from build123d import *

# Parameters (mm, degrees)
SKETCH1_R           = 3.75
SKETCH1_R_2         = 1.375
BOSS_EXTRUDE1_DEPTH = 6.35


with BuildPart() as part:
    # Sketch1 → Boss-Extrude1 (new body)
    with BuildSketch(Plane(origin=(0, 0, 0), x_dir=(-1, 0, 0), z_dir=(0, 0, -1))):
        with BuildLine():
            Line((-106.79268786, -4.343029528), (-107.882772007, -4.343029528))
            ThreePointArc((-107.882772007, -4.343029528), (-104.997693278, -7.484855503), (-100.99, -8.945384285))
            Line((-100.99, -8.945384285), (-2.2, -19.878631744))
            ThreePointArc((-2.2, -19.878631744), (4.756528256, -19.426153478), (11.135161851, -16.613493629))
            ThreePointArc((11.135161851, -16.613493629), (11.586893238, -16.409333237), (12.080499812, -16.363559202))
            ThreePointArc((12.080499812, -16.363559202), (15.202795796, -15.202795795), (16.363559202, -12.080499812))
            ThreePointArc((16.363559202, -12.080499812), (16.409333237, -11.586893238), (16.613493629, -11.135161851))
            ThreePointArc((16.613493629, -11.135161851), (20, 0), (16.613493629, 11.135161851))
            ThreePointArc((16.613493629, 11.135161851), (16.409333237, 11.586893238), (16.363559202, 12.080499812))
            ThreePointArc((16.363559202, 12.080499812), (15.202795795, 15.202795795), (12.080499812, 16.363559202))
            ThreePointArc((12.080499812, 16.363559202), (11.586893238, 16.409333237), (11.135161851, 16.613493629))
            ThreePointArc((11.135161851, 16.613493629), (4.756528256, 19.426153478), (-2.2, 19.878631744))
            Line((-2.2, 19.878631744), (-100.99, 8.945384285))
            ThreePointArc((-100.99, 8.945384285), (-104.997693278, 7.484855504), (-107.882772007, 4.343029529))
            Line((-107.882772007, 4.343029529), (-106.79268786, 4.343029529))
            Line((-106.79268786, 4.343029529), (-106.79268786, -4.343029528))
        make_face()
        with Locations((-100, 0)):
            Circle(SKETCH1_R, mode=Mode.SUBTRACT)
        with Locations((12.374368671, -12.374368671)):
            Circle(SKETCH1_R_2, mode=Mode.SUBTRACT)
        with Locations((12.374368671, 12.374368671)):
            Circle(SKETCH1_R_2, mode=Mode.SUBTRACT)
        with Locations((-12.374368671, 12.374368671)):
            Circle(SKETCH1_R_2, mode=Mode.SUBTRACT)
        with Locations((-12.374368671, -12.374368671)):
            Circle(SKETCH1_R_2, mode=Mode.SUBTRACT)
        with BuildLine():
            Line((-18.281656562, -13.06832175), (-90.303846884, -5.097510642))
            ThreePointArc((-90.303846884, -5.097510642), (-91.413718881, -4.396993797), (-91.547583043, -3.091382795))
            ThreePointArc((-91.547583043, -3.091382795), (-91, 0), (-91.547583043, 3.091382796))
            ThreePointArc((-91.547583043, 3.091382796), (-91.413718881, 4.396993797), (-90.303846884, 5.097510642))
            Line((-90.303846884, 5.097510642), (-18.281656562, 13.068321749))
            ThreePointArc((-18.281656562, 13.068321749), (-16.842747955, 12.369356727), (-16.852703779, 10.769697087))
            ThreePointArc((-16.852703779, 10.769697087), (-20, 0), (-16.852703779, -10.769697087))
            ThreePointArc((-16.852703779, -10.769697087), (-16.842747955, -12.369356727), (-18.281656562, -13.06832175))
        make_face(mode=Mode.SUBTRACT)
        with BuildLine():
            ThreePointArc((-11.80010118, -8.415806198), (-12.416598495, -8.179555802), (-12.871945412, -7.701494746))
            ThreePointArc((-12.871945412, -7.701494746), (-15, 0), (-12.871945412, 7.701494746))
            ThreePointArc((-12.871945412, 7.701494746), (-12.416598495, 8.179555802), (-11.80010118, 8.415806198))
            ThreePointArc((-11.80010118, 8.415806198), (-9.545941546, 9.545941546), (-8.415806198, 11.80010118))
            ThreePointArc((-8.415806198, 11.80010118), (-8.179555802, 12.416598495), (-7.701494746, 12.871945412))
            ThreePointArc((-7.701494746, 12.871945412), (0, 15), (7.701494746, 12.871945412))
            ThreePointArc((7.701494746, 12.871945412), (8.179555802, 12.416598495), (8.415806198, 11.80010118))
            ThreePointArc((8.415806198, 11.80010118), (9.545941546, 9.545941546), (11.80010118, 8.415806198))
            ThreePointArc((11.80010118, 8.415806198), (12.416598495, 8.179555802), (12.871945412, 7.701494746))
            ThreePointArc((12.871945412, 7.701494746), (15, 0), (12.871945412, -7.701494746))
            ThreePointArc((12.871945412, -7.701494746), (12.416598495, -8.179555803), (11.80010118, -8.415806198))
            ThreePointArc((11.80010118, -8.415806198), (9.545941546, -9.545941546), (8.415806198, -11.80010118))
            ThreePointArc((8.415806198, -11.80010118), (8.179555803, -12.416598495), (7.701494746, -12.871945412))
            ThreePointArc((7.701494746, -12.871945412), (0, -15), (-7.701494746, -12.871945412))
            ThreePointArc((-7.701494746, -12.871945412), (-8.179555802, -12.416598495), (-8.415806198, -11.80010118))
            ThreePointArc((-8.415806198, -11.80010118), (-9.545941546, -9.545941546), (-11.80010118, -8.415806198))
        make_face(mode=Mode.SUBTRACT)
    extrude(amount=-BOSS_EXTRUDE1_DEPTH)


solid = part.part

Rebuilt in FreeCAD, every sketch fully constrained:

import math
import FreeCAD as App
import Part
import Sketcher
from FreeCAD import Vector
Q = App.Units.Quantity

doc = App.newDocument("Part")
body = doc.addObject("PartDesign::Body", "Body")

# Sketch on XY plane
sketch1 = body.newObject("Sketcher::SketchObject", "Sketch")
sketch1.AttachmentSupport = (doc.getObject("XY_Plane"), [""])
sketch1.MapMode = "FlatFace"
sketch1.addGeometry([
    Part.LineSegment(Vector(106.8, -4.3, 0), Vector(107.9, -4.3, 0)),  # 0
    Part.ArcOfCircle(Part.Circle(Vector(100, 0, 0), Vector(0, 0, 1), 9), math.radians(-84), math.radians(-29)),  # 1
    Part.LineSegment(Vector(101, -8.9, 0), Vector(2.2, -19.9, 0)),  # 2
    Part.ArcOfCircle(Part.Circle(Vector(0, 0, 0), Vector(0, 0, 1), 20), math.radians(-124), math.radians(-84)),  # 3
    Part.ArcOfCircle(Part.Circle(Vector(-12, -17.9, 0), Vector(0, 0, 1), 1.5), math.radians(56), math.radians(94)),  # 4
    Part.ArcOfCircle(Part.Circle(Vector(-12.4, -12.4, 0), Vector(0, 0, 1), 4), math.radians(176), math.radians(274)),  # 5
    Part.ArcOfCircle(Part.Circle(Vector(-17.9, -12, 0), Vector(0, 0, 1), 1.5), math.radians(-4), math.radians(34)),  # 6
    Part.ArcOfCircle(Part.Circle(Vector(0, 0, 0), Vector(0, 0, 1), 20), math.radians(146), math.radians(214)),  # 7
    Part.ArcOfCircle(Part.Circle(Vector(-17.9, 12, 0), Vector(0, 0, 1), 1.5), math.radians(-34), math.radians(4)),  # 8
    Part.ArcOfCircle(Part.Circle(Vector(-12.4, 12.4, 0), Vector(0, 0, 1), 4), math.radians(86), math.radians(184)),  # 9
    Part.ArcOfCircle(Part.Circle(Vector(-12, 17.9, 0), Vector(0, 0, 1), 1.5), math.radians(-94), math.radians(-56)),  # 10
    Part.ArcOfCircle(Part.Circle(Vector(0, 0, 0), Vector(0, 0, 1), 20), math.radians(84), math.radians(124)),  # 11
    Part.LineSegment(Vector(2.2, 19.9, 0), Vector(101, 8.9, 0)),  # 12
    Part.ArcOfCircle(Part.Circle(Vector(100, 0, 0), Vector(0, 0, 1), 9), math.radians(29), math.radians(84)),  # 13
    Part.LineSegment(Vector(107.9, 4.3, 0), Vector(106.8, 4.3, 0)),  # 14
    Part.LineSegment(Vector(106.8, 4.3, 0), Vector(106.8, -4.3, 0)),  # 15
    Part.Circle(Vector(100, 0, 0), Vector(0, 0, 1), 3.8),  # 16
    Part.ArcOfCircle(Part.Circle(Vector(18.1, -11.6, 0), Vector(0, 0, 1), 1.5), math.radians(147), math.radians(276)),  # 17
    Part.LineSegment(Vector(18.3, -13.1, 0), Vector(90.3, -5.1, 0)),  # 18
    Part.ArcOfCircle(Part.Circle(Vector(90.1, -3.6, 0), Vector(0, 0, 1), 1.5), math.radians(-84), math.radians(20)),  # 19
    Part.ArcOfCircle(Part.Circle(Vector(100, 0, 0), Vector(0, 0, 1), 9), math.radians(160), math.radians(200)),  # 20
    Part.ArcOfCircle(Part.Circle(Vector(90.1, 3.6, 0), Vector(0, 0, 1), 1.5), math.radians(-20), math.radians(84)),  # 21
    Part.LineSegment(Vector(90.3, 5.1, 0), Vector(18.3, 13.1, 0)),  # 22
    Part.ArcOfCircle(Part.Circle(Vector(18.1, 11.6, 0), Vector(0, 0, 1), 1.5), math.radians(84), math.radians(213)),  # 23
    Part.ArcOfCircle(Part.Circle(Vector(0, 0, 0), Vector(0, 0, 1), 20), math.radians(-33), math.radians(33)),  # 24
    Part.Circle(Vector(12.4, -12.4, 0), Vector(0, 0, 1), 1.4),  # 25
    Part.Circle(Vector(-12.4, -12.4, 0), Vector(0, 0, 1), 1.4),  # 26
    Part.ArcOfCircle(Part.Circle(Vector(12.4, -12.4, 0), Vector(0, 0, 1), 4), math.radians(98), math.radians(172)),  # 27
    Part.ArcOfCircle(Part.Circle(Vector(11.6, -6.9, 0), Vector(0, 0, 1), 1.5), math.radians(-82), math.radians(-31)),  # 28
    Part.ArcOfCircle(Part.Circle(Vector(0, 0, 0), Vector(0, 0, 1), 15), math.radians(-31), math.radians(31)),  # 29
    Part.ArcOfCircle(Part.Circle(Vector(11.6, 6.9, 0), Vector(0, 0, 1), 1.5), math.radians(31), math.radians(82)),  # 30
    Part.ArcOfCircle(Part.Circle(Vector(12.4, 12.4, 0), Vector(0, 0, 1), 4), math.radians(-172), math.radians(-98)),  # 31
    Part.ArcOfCircle(Part.Circle(Vector(6.9, 11.6, 0), Vector(0, 0, 1), 1.5), math.radians(8), math.radians(59)),  # 32
    Part.ArcOfCircle(Part.Circle(Vector(0, 0, 0), Vector(0, 0, 1), 15), math.radians(59), math.radians(121)),  # 33
    Part.ArcOfCircle(Part.Circle(Vector(-6.9, 11.6, 0), Vector(0, 0, 1), 1.5), math.radians(121), math.radians(172)),  # 34
    Part.ArcOfCircle(Part.Circle(Vector(-12.4, 12.4, 0), Vector(0, 0, 1), 4), math.radians(-82), math.radians(-8)),  # 35
    Part.ArcOfCircle(Part.Circle(Vector(-11.6, 6.9, 0), Vector(0, 0, 1), 1.5), math.radians(98), math.radians(149)),  # 36
    Part.ArcOfCircle(Part.Circle(Vector(0, 0, 0), Vector(0, 0, 1), 15), math.radians(149), math.radians(211)),  # 37
    Part.ArcOfCircle(Part.Circle(Vector(-11.6, -6.9, 0), Vector(0, 0, 1), 1.5), math.radians(-149), math.radians(-98)),  # 38
    Part.ArcOfCircle(Part.Circle(Vector(-12.4, -12.4, 0), Vector(0, 0, 1), 4), math.radians(8), math.radians(82)),  # 39
    Part.ArcOfCircle(Part.Circle(Vector(-6.9, -11.6, 0), Vector(0, 0, 1), 1.5), math.radians(-172), math.radians(-121)),  # 40
    Part.ArcOfCircle(Part.Circle(Vector(0, 0, 0), Vector(0, 0, 1), 15), math.radians(-121), math.radians(-59)),  # 41
    Part.ArcOfCircle(Part.Circle(Vector(6.9, -11.6, 0), Vector(0, 0, 1), 1.5), math.radians(-59), math.radians(-8)),  # 42
    Part.Circle(Vector(12.4, 12.4, 0), Vector(0, 0, 1), 1.4),  # 43
    Part.Circle(Vector(-12.4, 12.4, 0), Vector(0, 0, 1), 1.4),  # 44
], False)
sketch1.addConstraint([
    Sketcher.Constraint("Coincident", 0, 2, 1, 2),
    Sketcher.Constraint("Tangent", 1, 1, 2, 1),
    Sketcher.Constraint("Tangent", 2, 2, 3, 2),
    Sketcher.Constraint("Tangent", 3, 1, 4, 1),
    Sketcher.Constraint("Tangent", 4, 2, 5, 2),
    Sketcher.Constraint("Tangent", 5, 1, 6, 1),
    Sketcher.Constraint("Tangent", 6, 2, 7, 2),
    Sketcher.Constraint("Tangent", 7, 1, 8, 1),
    Sketcher.Constraint("Tangent", 8, 2, 9, 2),
    Sketcher.Constraint("Tangent", 9, 1, 10, 1),
    Sketcher.Constraint("Tangent", 10, 2, 11, 2),
    Sketcher.Constraint("Tangent", 11, 1, 12, 1),
    Sketcher.Constraint("Tangent", 12, 2, 13, 2),
    Sketcher.Constraint("Coincident", 13, 1, 14, 1),
    Sketcher.Constraint("Coincident", 14, 2, 15, 1),
    Sketcher.Constraint("Coincident", 15, 2, 0, 1),
    Sketcher.Constraint("Tangent", 17, 2, 18, 1),
    Sketcher.Constraint("Tangent", 18, 2, 19, 1),
    Sketcher.Constraint("Tangent", 19, 2, 20, 2),
    Sketcher.Constraint("Tangent", 20, 1, 21, 1),
    Sketcher.Constraint("Tangent", 21, 2, 22, 1),
    Sketcher.Constraint("Tangent", 22, 2, 23, 1),
    Sketcher.Constraint("Tangent", 23, 2, 24, 2),
    Sketcher.Constraint("Tangent", 24, 1, 17, 1),
    Sketcher.Constraint("Tangent", 27, 1, 28, 1),
    Sketcher.Constraint("Tangent", 28, 2, 29, 1),
    Sketcher.Constraint("Tangent", 29, 2, 30, 1),
    Sketcher.Constraint("Tangent", 30, 2, 31, 2),
    Sketcher.Constraint("Tangent", 31, 1, 32, 1),
    Sketcher.Constraint("Tangent", 32, 2, 33, 1),
    Sketcher.Constraint("Tangent", 33, 2, 34, 1),
    Sketcher.Constraint("Tangent", 34, 2, 35, 2),
    Sketcher.Constraint("Tangent", 35, 1, 36, 1),
    Sketcher.Constraint("Tangent", 36, 2, 37, 1),
    Sketcher.Constraint("Tangent", 37, 2, 38, 1),
    Sketcher.Constraint("Tangent", 38, 2, 39, 2),
    Sketcher.Constraint("Tangent", 39, 1, 40, 1),
    Sketcher.Constraint("Tangent", 40, 2, 41, 1),
    Sketcher.Constraint("Tangent", 41, 2, 42, 1),
    Sketcher.Constraint("Tangent", 42, 2, 27, 2),
    Sketcher.Constraint("Horizontal", 0),
    Sketcher.Constraint("Horizontal", 14),
    Sketcher.Constraint("Vertical", 15),
    Sketcher.Constraint("Coincident", 3, 3, -1, 1),
    Sketcher.Constraint("Coincident", 7, 3, -1, 1),
    Sketcher.Constraint("Coincident", 11, 3, -1, 1),
    Sketcher.Constraint("Coincident", 24, 3, -1, 1),
    Sketcher.Constraint("Coincident", 29, 3, -1, 1),
    Sketcher.Constraint("Coincident", 33, 3, -1, 1),
    Sketcher.Constraint("Coincident", 37, 3, -1, 1),
    Sketcher.Constraint("Coincident", 41, 3, -1, 1),
    Sketcher.Constraint("Coincident", 13, 3, 1, 3),
    Sketcher.Constraint("Coincident", 16, 3, 1, 3),
    Sketcher.Constraint("Coincident", 20, 3, 1, 3),
    Sketcher.Constraint("Coincident", 26, 3, 5, 3),
    Sketcher.Constraint("Coincident", 27, 3, 25, 3),
    Sketcher.Constraint("Coincident", 35, 3, 9, 3),
    Sketcher.Constraint("Coincident", 39, 3, 5, 3),
    Sketcher.Constraint("Coincident", 43, 3, 31, 3),
    Sketcher.Constraint("Coincident", 44, 3, 9, 3),
    Sketcher.Constraint("Equal", 4, 6),
    Sketcher.Constraint("Equal", 3, 7),
    Sketcher.Constraint("Equal", 6, 8),
    Sketcher.Constraint("Equal", 5, 9),
    Sketcher.Constraint("Equal", 8, 10),
    Sketcher.Constraint("Equal", 7, 11),
    Sketcher.Constraint("Equal", 1, 13),
    Sketcher.Constraint("Equal", 10, 17),
    Sketcher.Constraint("Equal", 17, 19),
    Sketcher.Constraint("Equal", 13, 20),
    Sketcher.Constraint("Equal", 19, 21),
    Sketcher.Constraint("Equal", 21, 23),
    Sketcher.Constraint("Equal", 11, 24),
    Sketcher.Constraint("Equal", 25, 26),
    Sketcher.Constraint("Equal", 9, 27),
    Sketcher.Constraint("Equal", 23, 28),
    Sketcher.Constraint("Equal", 28, 30),
    Sketcher.Constraint("Equal", 27, 31),
    Sketcher.Constraint("Equal", 30, 32),
    Sketcher.Constraint("Equal", 29, 33),
    Sketcher.Constraint("Equal", 32, 34),
    Sketcher.Constraint("Equal", 31, 35),
    Sketcher.Constraint("Equal", 34, 36),
    Sketcher.Constraint("Equal", 33, 37),
    Sketcher.Constraint("Equal", 36, 38),
    Sketcher.Constraint("Equal", 35, 39),
    Sketcher.Constraint("Equal", 38, 40),
    Sketcher.Constraint("Equal", 37, 41),
    Sketcher.Constraint("Equal", 40, 42),
    Sketcher.Constraint("Equal", 26, 43),
    Sketcher.Constraint("Equal", 43, 44),
    Sketcher.Constraint("Symmetric", 9, 3, 25, 3, -1, 1),
    Sketcher.Constraint("Symmetric", 5, 3, 31, 3, -1, 1),
    Sketcher.Constraint("Symmetric", 5, 3, 25, 3, -2),
    Sketcher.Constraint("Symmetric", 19, 3, 21, 3, -1),
    Sketcher.Constraint("Parallel", 2, 18),
    Sketcher.Constraint("Parallel", 12, 22),
    Sketcher.Constraint("Vertical", 0, 2, 13, 1),
    Sketcher.Constraint("Radius", 1, Q("9 mm")),
    Sketcher.Constraint("Radius", 3, Q("20 mm")),
    Sketcher.Constraint("Radius", 5, Q("4 mm")),
    Sketcher.Constraint("Radius", 29, Q("15 mm")),
    Sketcher.Constraint("Diameter", 16, Q("7.5 mm")),
    Sketcher.Constraint("Radius", 4, Q("1.5 mm")),
    Sketcher.Constraint("Diameter", 25, Q("2.75 mm")),
    Sketcher.Constraint("DistanceX", -1, 1, 1, 3, Q("100 mm")),
    Sketcher.Constraint("DistanceY", 15, 2, 15, 1, Q("8.686059 mm")),
    Sketcher.Constraint("DistanceX", 4, 3, -1, 1, Q("11.970299 mm")),
    Sketcher.Constraint("DistanceY", 6, 3, -1, 1, Q("11.970299 mm")),
    Sketcher.Constraint("Distance", 18, Q("72.461919 mm")),
    Sketcher.Constraint("DistanceX", 0, 1, 0, 2, Q("1.090084 mm")),
])
pad1 = body.newObject("PartDesign::Pad", "Pad")
pad1.Profile = sketch1
pad1.Length = 6.35

doc.recompute()
